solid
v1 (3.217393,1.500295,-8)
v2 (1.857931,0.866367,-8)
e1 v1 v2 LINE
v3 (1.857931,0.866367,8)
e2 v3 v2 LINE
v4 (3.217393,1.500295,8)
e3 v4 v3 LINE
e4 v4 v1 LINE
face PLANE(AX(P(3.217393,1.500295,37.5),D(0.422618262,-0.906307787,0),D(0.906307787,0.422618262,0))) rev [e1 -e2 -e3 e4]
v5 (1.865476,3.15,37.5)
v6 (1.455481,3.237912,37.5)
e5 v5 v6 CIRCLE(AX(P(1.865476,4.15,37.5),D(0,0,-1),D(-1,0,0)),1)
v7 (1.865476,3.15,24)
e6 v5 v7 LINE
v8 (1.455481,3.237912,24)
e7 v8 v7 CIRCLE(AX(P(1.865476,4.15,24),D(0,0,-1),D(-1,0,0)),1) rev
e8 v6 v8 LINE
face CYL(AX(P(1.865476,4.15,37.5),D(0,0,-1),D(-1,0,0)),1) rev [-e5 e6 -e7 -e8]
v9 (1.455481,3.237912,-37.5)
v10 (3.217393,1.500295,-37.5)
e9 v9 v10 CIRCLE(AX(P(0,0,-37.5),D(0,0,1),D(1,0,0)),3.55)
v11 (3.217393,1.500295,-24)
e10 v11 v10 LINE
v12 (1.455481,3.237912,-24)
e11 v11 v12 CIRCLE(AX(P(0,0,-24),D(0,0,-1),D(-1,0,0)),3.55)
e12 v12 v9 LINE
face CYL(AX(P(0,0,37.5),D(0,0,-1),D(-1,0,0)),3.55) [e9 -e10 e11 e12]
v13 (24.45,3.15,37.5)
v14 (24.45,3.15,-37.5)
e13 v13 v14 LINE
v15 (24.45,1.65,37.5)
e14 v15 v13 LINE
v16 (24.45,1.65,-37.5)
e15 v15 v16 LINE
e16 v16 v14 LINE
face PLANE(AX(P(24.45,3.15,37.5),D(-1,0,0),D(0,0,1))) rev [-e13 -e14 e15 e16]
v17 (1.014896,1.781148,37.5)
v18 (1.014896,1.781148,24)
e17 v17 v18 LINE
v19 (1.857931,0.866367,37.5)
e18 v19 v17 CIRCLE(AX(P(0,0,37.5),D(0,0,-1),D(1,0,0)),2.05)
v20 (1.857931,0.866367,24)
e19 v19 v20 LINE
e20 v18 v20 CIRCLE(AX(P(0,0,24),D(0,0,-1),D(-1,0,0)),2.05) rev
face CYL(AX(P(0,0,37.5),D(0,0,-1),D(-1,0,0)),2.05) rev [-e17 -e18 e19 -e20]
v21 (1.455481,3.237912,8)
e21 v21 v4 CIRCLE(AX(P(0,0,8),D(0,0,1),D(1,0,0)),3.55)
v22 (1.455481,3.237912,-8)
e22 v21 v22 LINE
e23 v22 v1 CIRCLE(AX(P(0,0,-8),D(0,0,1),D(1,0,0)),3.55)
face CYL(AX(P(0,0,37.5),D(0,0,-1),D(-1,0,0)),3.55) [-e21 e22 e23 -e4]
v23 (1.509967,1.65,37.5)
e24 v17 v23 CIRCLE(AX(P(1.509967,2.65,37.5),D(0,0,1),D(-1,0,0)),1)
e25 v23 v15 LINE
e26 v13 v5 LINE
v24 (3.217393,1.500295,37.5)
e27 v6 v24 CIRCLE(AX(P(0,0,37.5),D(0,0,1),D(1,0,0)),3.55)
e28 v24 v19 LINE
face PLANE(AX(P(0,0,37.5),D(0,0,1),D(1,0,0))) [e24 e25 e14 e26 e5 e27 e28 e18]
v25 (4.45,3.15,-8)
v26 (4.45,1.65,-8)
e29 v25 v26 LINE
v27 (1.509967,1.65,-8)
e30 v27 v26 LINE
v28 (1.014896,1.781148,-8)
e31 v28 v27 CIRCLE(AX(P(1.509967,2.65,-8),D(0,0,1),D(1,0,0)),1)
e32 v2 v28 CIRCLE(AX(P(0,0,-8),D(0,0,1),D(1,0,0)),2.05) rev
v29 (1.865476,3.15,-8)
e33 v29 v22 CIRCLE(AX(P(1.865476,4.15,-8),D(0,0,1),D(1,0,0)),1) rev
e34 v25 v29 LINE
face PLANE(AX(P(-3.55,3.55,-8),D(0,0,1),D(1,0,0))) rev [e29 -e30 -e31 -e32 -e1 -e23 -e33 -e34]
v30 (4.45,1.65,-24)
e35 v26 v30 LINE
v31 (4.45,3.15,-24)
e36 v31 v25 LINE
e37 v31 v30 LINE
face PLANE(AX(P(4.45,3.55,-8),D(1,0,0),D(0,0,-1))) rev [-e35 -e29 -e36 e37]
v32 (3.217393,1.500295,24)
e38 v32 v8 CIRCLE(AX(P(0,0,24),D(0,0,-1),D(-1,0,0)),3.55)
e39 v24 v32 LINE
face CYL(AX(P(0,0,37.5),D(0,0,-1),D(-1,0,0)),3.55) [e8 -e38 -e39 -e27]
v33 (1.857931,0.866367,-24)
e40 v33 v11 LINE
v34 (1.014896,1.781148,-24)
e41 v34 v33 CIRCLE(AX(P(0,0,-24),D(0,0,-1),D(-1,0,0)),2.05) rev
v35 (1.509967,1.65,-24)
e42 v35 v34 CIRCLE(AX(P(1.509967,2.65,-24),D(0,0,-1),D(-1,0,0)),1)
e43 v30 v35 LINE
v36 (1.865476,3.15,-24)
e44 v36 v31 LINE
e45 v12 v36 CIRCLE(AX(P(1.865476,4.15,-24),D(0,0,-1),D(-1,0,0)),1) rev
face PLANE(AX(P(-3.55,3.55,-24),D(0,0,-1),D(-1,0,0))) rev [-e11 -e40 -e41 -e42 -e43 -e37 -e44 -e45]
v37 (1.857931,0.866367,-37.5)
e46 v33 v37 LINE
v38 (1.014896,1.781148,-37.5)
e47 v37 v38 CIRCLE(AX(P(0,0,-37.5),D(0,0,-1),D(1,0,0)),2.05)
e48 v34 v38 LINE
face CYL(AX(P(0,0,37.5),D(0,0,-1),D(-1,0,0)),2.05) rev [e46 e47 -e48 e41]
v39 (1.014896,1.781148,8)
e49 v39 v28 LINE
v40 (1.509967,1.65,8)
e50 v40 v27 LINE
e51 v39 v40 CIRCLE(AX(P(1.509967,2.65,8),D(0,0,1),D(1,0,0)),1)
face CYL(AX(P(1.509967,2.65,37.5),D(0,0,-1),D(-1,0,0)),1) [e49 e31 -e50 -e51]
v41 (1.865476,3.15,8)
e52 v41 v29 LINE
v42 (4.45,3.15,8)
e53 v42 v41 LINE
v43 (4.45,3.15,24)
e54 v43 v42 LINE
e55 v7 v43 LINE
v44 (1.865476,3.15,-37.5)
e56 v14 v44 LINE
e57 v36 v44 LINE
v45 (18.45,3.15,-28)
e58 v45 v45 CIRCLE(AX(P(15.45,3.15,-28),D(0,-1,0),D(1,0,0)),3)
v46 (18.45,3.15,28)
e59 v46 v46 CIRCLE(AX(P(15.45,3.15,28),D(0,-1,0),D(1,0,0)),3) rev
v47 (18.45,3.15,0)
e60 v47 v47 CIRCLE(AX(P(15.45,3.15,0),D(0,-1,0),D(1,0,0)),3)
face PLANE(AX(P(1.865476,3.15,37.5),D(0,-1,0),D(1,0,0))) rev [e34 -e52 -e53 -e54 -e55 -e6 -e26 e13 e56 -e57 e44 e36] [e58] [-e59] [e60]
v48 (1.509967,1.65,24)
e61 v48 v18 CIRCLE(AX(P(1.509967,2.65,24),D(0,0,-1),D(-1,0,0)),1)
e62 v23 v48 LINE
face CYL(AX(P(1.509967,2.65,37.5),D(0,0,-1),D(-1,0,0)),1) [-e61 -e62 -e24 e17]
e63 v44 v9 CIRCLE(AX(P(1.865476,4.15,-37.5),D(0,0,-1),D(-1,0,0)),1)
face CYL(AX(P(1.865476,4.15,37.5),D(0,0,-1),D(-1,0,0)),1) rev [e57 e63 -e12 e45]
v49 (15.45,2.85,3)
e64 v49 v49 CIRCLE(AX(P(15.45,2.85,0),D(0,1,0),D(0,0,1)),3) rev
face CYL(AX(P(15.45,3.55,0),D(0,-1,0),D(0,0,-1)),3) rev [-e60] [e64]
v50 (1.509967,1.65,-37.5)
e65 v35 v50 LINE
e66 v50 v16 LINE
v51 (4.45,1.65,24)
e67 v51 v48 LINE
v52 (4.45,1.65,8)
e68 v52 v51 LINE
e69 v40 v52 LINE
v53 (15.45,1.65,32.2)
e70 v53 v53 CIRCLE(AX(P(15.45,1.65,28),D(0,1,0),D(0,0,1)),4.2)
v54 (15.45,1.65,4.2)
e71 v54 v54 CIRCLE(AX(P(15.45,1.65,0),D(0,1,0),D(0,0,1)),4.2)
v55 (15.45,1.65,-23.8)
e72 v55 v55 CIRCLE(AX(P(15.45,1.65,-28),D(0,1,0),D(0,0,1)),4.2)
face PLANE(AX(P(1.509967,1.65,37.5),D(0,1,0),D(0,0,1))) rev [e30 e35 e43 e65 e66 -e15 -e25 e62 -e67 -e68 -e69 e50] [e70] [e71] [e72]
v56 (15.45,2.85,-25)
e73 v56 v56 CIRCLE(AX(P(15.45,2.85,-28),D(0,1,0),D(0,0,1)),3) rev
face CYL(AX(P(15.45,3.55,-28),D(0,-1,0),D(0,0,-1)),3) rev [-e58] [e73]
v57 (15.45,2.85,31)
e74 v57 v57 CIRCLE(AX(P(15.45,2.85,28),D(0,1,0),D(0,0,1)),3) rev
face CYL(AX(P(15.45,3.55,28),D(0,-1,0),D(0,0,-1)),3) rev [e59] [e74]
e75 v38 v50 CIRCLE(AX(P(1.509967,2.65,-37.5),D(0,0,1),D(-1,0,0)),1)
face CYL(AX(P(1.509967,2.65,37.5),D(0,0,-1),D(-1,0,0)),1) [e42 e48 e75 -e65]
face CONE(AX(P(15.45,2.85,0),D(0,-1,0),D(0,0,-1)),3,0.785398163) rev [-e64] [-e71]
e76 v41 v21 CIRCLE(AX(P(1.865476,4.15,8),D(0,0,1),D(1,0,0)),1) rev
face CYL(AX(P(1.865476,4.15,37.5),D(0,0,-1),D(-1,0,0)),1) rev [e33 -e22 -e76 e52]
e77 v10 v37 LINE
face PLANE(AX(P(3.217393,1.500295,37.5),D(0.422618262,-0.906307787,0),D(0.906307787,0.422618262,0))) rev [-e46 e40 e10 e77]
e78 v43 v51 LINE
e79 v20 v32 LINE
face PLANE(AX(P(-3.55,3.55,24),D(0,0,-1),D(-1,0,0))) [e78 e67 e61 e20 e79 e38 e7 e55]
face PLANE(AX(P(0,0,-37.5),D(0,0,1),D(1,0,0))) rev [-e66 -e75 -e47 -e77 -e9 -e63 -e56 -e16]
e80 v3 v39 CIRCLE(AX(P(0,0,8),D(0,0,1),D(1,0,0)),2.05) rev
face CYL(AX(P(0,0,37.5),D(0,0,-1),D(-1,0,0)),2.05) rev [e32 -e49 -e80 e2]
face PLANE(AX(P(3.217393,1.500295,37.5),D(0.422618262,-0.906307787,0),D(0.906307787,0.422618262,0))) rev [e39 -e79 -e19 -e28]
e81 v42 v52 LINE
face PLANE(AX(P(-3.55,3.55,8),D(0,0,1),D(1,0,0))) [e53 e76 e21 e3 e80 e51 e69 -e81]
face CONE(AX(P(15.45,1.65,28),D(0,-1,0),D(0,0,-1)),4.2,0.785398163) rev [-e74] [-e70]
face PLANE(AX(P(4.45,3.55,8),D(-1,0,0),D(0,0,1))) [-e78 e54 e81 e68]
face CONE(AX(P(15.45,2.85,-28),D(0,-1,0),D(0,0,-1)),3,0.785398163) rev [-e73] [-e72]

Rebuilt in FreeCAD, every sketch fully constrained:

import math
import FreeCAD as App
import Part
import Sketcher
Q = App.Units.Quantity


def edges_at(feature, points):
    """Names of the edges that pass closest to the given points."""
    edges = feature.Shape.Edges
    near = lambda p: min(range(len(edges)), key=lambda i: edges[i].distToShape(Part.Vertex(*p))[0])
    return sorted({f"Edge{near(p) + 1}" for p in points})


def add_polygon(sketch, points):
    """Adds a closed chain of lines whose ends are joined by coincident constraints."""
    first, n = sketch.GeometryCount, len(points)
    for a, b in zip(points, points[1:] + points[:1]):
        sketch.addGeometry(Part.LineSegment(App.Vector(*a, 0), App.Vector(*b, 0)), False)
    for i in range(n):
        sketch.addConstraint(Sketcher.Constraint("Coincident", first + i, 2, first + (i + 1) % n, 1))

doc = App.newDocument("Part")
body = doc.addObject("PartDesign::Body", "Body")

sketch1 = body.newObject("Sketcher::SketchObject", "Sketch")
sketch1.AttachmentSupport = (doc.getObject("XY_Plane"), [""])
sketch1.MapMode = "FlatFace"
sketch1.addGeometry(Part.LineSegment(App.Vector(24.45, 3.15, 0), App.Vector(1.87, 3.15, 0)), False)
sketch1.addGeometry(Part.ArcOfCircle(Part.Circle(App.Vector(1.87, 4.15, 0), App.Vector(0, 0, 1), 1), math.radians(-114), math.radians(-90)), False)
sketch1.addGeometry(Part.ArcOfCircle(Part.Circle(App.Vector(0, 0, 0), App.Vector(0, 0, 1), 3.55), math.radians(66), math.radians(385)), False)
sketch1.addGeometry(Part.LineSegment(App.Vector(3.22, 1.5, 0), App.Vector(1.86, 0.87, 0)), False)
sketch1.addGeometry(Part.ArcOfCircle(Part.Circle(App.Vector(0, 0, 0), App.Vector(0, 0, 1), 2.05), math.radians(60), math.radians(385)), False)
sketch1.addGeometry(Part.ArcOfCircle(Part.Circle(App.Vector(1.51, 2.65, 0), App.Vector(0, 0, 1), 1), math.radians(-120), math.radians(-90)), False)
sketch1.addGeometry(Part.LineSegment(App.Vector(1.51, 1.65, 0), App.Vector(24.45, 1.65, 0)), False)
sketch1.addGeometry(Part.LineSegment(App.Vector(24.45, 1.65, 0), App.Vector(24.45, 3.15, 0)), False)
sketch1.addConstraint(Sketcher.Constraint("Tangent", 0, 2, 1, 2))
sketch1.addConstraint(Sketcher.Constraint("Tangent", 1, 1, 2, 1))
sketch1.addConstraint(Sketcher.Constraint("Coincident", 2, 2, 3, 1))
sketch1.addConstraint(Sketcher.Constraint("Coincident", 3, 2, 4, 2))
sketch1.addConstraint(Sketcher.Constraint("Tangent", 4, 1, 5, 1))
sketch1.addConstraint(Sketcher.Constraint("Tangent", 5, 2, 6, 1))
sketch1.addConstraint(Sketcher.Constraint("Coincident", 6, 2, 7, 1))
sketch1.addConstraint(Sketcher.Constraint("Coincident", 7, 2, 0, 1))
sketch1.addConstraint(Sketcher.Constraint("Horizontal", 0))
sketch1.addConstraint(Sketcher.Constraint("Horizontal", 6))
sketch1.addConstraint(Sketcher.Constraint("Vertical", 7))
sketch1.addConstraint(Sketcher.Constraint("Coincident", 2, 3, -1, 1))
sketch1.addConstraint(Sketcher.Constraint("Coincident", 4, 3, -1, 1))
sketch1.addConstraint(Sketcher.Constraint("Equal", 1, 5))
sketch1.addConstraint(Sketcher.Constraint("Radius", 1, Q("1 mm")))
sketch1.addConstraint(Sketcher.Constraint("Angle", 3, Q("-155 deg")))
sketch1.addConstraint(Sketcher.Constraint("Radius", 2, Q("3.55 mm")))
sketch1.addConstraint(Sketcher.Constraint("Radius", 4, Q("2.05 mm")))
sketch1.addConstraint(Sketcher.Constraint("DistanceY", 7, 1, 7, 2, Q("1.5 mm")))
sketch1.addConstraint(Sketcher.Constraint("DistanceY", -1, 1, 1, 3, Q("4.15 mm")))
sketch1.addConstraint(Sketcher.Constraint("DistanceX", -1, 1, 6, 2, Q("24.45 mm")))
sketch1.addConstraint(Sketcher.Constraint("DistanceX", -1, 1, 3, 2, Q("1.857931 mm")))
pad1 = body.newObject("PartDesign::Pad", "Pad")
pad1.Profile = sketch1
pad1.Length = 75
pad1.Midplane = True

sketch2 = body.newObject("Sketcher::SketchObject", "Sketch001")
sketch2.AttachmentSupport = (doc.getObject("XZ_Plane"), [""])
sketch2.MapMode = "FlatFace"
sketch2.AttachmentOffset = App.Placement(App.Vector(0, 0, -1.65), App.Rotation())
sketch2.addGeometry(Part.Circle(App.Vector(15.4, 0, 0), App.Vector(0, 0, 1), 3), False)
sketch2.addConstraint(Sketcher.Constraint("PointOnObject", 0, 3, -1))
sketch2.addConstraint(Sketcher.Constraint("Diameter", 0, Q("6 mm")))
sketch2.addConstraint(Sketcher.Constraint("DistanceX", -1, 1, 0, 3, Q("15.45 mm")))
pocket1 = body.newObject("PartDesign::Pocket", "Pocket")
pocket1.Profile = sketch2
pocket1.Type = "ThroughAll"
doc.recompute()

linearpattern = body.newObject("PartDesign::LinearPattern", "LinearPattern")
linearpattern.Originals = [pocket1]
linearpattern.Direction = (doc.getObject("Z_Axis"), [""])
linearpattern.Mode = "offset"
linearpattern.Offset = 28
linearpattern.Occurrences = 2
linearpattern.Reversed = True
body.Tip = linearpattern

sketch3 = body.newObject("Sketcher::SketchObject", "Sketch002")
sketch3.AttachmentSupport = (doc.getObject("XZ_Plane"), [""])
sketch3.MapMode = "FlatFace"
sketch3.AttachmentOffset = App.Placement(App.Vector(0, 0, -1.65), App.Rotation())
sketch3.addGeometry(Part.Circle(App.Vector(15.4, 28, 0), App.Vector(0, 0, 1), 3), False)
sketch3.addConstraint(Sketcher.Constraint("Diameter", 0, Q("6 mm")))
sketch3.addConstraint(Sketcher.Constraint("DistanceY", -1, 1, 0, 3, Q("28 mm")))
sketch3.addConstraint(Sketcher.Constraint("DistanceX", -1, 1, 0, 3, Q("15.45 mm")))
pocket2 = body.newObject("PartDesign::Pocket", "Pocket001")
pocket2.Profile = sketch3
pocket2.Type = "ThroughAll"

sketch4 = body.newObject("Sketcher::SketchObject", "Sketch003")
sketch4.AttachmentSupport = (doc.getObject("XZ_Plane"), [""])
sketch4.MapMode = "FlatFace"
sketch4.AttachmentOffset = App.Placement(App.Vector(0, 0, -1.65), App.Rotation())
sketch4.addGeometry(Part.Circle(App.Vector(15.4, 0, 0), App.Vector(0, 0, 1), 3), False)
sketch4.addConstraint(Sketcher.Constraint("PointOnObject", 0, 3, -1))
sketch4.addConstraint(Sketcher.Constraint("Diameter", 0, Q("6 mm")))
sketch4.addConstraint(Sketcher.Constraint("DistanceX", -1, 1, 0, 3, Q("15.45 mm")))
pocket3 = body.newObject("PartDesign::Pocket", "Pocket002")
pocket3.Profile = sketch4
pocket3.Type = "ThroughAll"
doc.recompute()

chamfer = body.newObject("PartDesign::Chamfer", "Chamfer")
chamfer.Base = (pocket3, edges_at(pocket3, [(15.45, 1.65, 3), (15.45, 1.65, -25), (12.45, 1.65, 28)]))
chamfer.Size = 1.2

sketch5 = body.newObject("Sketcher::SketchObject", "Sketch004")
sketch5.AttachmentSupport = (doc.getObject("XZ_Plane"), [""])
sketch5.MapMode = "FlatFace"
sketch5.AttachmentOffset = App.Placement(App.Vector(0, 0, -1.65), App.Rotation())
add_polygon(sketch5, [(-4, -8), (-4, -24), (4, -24), (4, -8)])
sketch5.addConstraint(Sketcher.Constraint("Vertical", 0))
sketch5.addConstraint(Sketcher.Constraint("Horizontal", 1))
sketch5.addConstraint(Sketcher.Constraint("Vertical", 2))
sketch5.addConstraint(Sketcher.Constraint("Horizontal", 3))
sketch5.addConstraint(Sketcher.Constraint("DistanceX", 1, 1, 1, 2, Q("8 mm")))
sketch5.addConstraint(Sketcher.Constraint("DistanceY", 0, 2, 0, 1, Q("16 mm")))
sketch5.addConstraint(Sketcher.Constraint("DistanceY", 0, 2, -1, 1, Q("24 mm")))
sketch5.addConstraint(Sketcher.Constraint("DistanceX", 0, 2, -1, 1, Q("3.55 mm")))
pocket4 = body.newObject("PartDesign::Pocket", "Pocket003")
pocket4.Profile = sketch5
pocket4.Length = 92.135287
pocket4.Midplane = True
doc.recompute()

mirrored = body.newObject("PartDesign::Mirrored", "Mirrored")
mirrored.Originals = [pocket4]
mirrored.MirrorPlane = (doc.getObject("XY_Plane"), [""])
body.Tip = mirrored

doc.recompute()
